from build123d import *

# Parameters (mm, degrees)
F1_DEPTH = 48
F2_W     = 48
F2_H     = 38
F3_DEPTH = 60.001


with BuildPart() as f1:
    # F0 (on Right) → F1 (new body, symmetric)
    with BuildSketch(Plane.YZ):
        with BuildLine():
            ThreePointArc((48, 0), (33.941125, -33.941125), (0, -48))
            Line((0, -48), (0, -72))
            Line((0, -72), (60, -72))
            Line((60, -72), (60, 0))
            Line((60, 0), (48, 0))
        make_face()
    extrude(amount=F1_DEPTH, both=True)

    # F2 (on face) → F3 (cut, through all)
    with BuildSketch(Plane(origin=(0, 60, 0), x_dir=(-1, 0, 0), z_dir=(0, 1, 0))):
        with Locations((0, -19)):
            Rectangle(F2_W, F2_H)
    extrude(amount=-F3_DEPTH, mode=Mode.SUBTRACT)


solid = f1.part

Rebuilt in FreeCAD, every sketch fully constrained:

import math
import FreeCAD as App
import Part
import Sketcher
from FreeCAD import Vector


def add_polygon(sketch, points):
    """Adds a closed chain of lines whose ends are joined by coincident constraints."""
    first, n = sketch.GeometryCount, len(points)
    for a, b in zip(points, points[1:] + points[:1]):
        sketch.addGeometry(Part.LineSegment(App.Vector(*a, 0), App.Vector(*b, 0)), False)
    for i in range(n):
        sketch.addConstraint(Sketcher.Constraint("Coincident", first + i, 2, first + (i + 1) % n, 1))

doc = App.newDocument("Part")
body = doc.addObject("PartDesign::Body", "Body")

# Sketch on YZ plane
sketch1 = doc.addObject("Sketcher::SketchObject", "Sketch")
body.addObject(sketch1)
sketch1.AttachmentSupport = (doc.YZ_Plane, [""])
sketch1.MapMode = "FlatFace"
sketch1.addGeometry([
    Part.ArcOfCircle(Part.Circle(Vector(-0.000002, 0.000002, 0), Vector(0, 0, 1), 48.000002), math.radians(-89.999998), math.radians(-0.000002)),  # 0
    Part.LineSegment(Vector(0, -48, 0), Vector(0, -72, 0)),  # 1
    Part.LineSegment(Vector(0, -72, 0), Vector(60, -72, 0)),  # 2
    Part.LineSegment(Vector(60, -72, 0), Vector(60, 0, 0)),  # 3
    Part.LineSegment(Vector(60, 0, 0), Vector(48, 0, 0)),  # 4
], False)
sketch1.addConstraint([
    Sketcher.Constraint("Coincident", 0, 1, 1, 1),
    Sketcher.Constraint("Coincident", 1, 2, 2, 1),
    Sketcher.Constraint("Coincident", 2, 2, 3, 1),
    Sketcher.Constraint("Coincident", 3, 2, 4, 1),
    Sketcher.Constraint("Coincident", 4, 2, 0, 2),
    Sketcher.Constraint("Vertical", 1),
    Sketcher.Constraint("Horizontal", 2),
    Sketcher.Constraint("Vertical", 3),
    Sketcher.Constraint("Horizontal", 4),
    Sketcher.Constraint("Coincident", 0, 3, -1, 1),
    Sketcher.Constraint("PointOnObject", 0, 1, -2),
    Sketcher.Constraint("PointOnObject", 3, 2, -1),
    Sketcher.Constraint("Radius", 0, 48.000002),
    Sketcher.Constraint("DistanceX", 2, 1, 2, 2, 60.0),
    Sketcher.Constraint("DistanceY", 1, 2, 1, 1, 24.0),
])
pad1 = doc.addObject("PartDesign::Pad", "Pad")
body.addObject(pad1)
pad1.Profile = sketch1
pad1.Length = 96
pad1.Midplane = True

# Sketch on XZ plane
sketch2 = doc.addObject("Sketcher::SketchObject", "Sketch001")
body.addObject(sketch2)
sketch2.AttachmentSupport = (doc.XZ_Plane, [""])
sketch2.MapMode = "FlatFace"
sketch2.AttachmentOffset = App.Placement(Vector(0, 0, -60), App.Rotation())
add_polygon(sketch2, [(24, 0), (24, -38), (-24, -38), (-24, 0)])  # lines 0-3
sketch2.addConstraint([
    Sketcher.Constraint("Vertical", 0),
    Sketcher.Constraint("Horizontal", 1),
    Sketcher.Constraint("Vertical", 2),
    Sketcher.Constraint("Horizontal", 3),
    Sketcher.Constraint("Symmetric", 2, 2, 3, 2, -1, 1),
    Sketcher.Constraint("DistanceX", 1, 2, 1, 1, 48.0),
    Sketcher.Constraint("DistanceY", 0, 2, 0, 1, 38.0),
])
pocket1 = doc.addObject("PartDesign::Pocket", "Pocket")
body.addObject(pocket1)
pocket1.Profile = sketch2
pocket1.Type = "ThroughAll"
pocket1.Reversed = True

doc.recompute()
